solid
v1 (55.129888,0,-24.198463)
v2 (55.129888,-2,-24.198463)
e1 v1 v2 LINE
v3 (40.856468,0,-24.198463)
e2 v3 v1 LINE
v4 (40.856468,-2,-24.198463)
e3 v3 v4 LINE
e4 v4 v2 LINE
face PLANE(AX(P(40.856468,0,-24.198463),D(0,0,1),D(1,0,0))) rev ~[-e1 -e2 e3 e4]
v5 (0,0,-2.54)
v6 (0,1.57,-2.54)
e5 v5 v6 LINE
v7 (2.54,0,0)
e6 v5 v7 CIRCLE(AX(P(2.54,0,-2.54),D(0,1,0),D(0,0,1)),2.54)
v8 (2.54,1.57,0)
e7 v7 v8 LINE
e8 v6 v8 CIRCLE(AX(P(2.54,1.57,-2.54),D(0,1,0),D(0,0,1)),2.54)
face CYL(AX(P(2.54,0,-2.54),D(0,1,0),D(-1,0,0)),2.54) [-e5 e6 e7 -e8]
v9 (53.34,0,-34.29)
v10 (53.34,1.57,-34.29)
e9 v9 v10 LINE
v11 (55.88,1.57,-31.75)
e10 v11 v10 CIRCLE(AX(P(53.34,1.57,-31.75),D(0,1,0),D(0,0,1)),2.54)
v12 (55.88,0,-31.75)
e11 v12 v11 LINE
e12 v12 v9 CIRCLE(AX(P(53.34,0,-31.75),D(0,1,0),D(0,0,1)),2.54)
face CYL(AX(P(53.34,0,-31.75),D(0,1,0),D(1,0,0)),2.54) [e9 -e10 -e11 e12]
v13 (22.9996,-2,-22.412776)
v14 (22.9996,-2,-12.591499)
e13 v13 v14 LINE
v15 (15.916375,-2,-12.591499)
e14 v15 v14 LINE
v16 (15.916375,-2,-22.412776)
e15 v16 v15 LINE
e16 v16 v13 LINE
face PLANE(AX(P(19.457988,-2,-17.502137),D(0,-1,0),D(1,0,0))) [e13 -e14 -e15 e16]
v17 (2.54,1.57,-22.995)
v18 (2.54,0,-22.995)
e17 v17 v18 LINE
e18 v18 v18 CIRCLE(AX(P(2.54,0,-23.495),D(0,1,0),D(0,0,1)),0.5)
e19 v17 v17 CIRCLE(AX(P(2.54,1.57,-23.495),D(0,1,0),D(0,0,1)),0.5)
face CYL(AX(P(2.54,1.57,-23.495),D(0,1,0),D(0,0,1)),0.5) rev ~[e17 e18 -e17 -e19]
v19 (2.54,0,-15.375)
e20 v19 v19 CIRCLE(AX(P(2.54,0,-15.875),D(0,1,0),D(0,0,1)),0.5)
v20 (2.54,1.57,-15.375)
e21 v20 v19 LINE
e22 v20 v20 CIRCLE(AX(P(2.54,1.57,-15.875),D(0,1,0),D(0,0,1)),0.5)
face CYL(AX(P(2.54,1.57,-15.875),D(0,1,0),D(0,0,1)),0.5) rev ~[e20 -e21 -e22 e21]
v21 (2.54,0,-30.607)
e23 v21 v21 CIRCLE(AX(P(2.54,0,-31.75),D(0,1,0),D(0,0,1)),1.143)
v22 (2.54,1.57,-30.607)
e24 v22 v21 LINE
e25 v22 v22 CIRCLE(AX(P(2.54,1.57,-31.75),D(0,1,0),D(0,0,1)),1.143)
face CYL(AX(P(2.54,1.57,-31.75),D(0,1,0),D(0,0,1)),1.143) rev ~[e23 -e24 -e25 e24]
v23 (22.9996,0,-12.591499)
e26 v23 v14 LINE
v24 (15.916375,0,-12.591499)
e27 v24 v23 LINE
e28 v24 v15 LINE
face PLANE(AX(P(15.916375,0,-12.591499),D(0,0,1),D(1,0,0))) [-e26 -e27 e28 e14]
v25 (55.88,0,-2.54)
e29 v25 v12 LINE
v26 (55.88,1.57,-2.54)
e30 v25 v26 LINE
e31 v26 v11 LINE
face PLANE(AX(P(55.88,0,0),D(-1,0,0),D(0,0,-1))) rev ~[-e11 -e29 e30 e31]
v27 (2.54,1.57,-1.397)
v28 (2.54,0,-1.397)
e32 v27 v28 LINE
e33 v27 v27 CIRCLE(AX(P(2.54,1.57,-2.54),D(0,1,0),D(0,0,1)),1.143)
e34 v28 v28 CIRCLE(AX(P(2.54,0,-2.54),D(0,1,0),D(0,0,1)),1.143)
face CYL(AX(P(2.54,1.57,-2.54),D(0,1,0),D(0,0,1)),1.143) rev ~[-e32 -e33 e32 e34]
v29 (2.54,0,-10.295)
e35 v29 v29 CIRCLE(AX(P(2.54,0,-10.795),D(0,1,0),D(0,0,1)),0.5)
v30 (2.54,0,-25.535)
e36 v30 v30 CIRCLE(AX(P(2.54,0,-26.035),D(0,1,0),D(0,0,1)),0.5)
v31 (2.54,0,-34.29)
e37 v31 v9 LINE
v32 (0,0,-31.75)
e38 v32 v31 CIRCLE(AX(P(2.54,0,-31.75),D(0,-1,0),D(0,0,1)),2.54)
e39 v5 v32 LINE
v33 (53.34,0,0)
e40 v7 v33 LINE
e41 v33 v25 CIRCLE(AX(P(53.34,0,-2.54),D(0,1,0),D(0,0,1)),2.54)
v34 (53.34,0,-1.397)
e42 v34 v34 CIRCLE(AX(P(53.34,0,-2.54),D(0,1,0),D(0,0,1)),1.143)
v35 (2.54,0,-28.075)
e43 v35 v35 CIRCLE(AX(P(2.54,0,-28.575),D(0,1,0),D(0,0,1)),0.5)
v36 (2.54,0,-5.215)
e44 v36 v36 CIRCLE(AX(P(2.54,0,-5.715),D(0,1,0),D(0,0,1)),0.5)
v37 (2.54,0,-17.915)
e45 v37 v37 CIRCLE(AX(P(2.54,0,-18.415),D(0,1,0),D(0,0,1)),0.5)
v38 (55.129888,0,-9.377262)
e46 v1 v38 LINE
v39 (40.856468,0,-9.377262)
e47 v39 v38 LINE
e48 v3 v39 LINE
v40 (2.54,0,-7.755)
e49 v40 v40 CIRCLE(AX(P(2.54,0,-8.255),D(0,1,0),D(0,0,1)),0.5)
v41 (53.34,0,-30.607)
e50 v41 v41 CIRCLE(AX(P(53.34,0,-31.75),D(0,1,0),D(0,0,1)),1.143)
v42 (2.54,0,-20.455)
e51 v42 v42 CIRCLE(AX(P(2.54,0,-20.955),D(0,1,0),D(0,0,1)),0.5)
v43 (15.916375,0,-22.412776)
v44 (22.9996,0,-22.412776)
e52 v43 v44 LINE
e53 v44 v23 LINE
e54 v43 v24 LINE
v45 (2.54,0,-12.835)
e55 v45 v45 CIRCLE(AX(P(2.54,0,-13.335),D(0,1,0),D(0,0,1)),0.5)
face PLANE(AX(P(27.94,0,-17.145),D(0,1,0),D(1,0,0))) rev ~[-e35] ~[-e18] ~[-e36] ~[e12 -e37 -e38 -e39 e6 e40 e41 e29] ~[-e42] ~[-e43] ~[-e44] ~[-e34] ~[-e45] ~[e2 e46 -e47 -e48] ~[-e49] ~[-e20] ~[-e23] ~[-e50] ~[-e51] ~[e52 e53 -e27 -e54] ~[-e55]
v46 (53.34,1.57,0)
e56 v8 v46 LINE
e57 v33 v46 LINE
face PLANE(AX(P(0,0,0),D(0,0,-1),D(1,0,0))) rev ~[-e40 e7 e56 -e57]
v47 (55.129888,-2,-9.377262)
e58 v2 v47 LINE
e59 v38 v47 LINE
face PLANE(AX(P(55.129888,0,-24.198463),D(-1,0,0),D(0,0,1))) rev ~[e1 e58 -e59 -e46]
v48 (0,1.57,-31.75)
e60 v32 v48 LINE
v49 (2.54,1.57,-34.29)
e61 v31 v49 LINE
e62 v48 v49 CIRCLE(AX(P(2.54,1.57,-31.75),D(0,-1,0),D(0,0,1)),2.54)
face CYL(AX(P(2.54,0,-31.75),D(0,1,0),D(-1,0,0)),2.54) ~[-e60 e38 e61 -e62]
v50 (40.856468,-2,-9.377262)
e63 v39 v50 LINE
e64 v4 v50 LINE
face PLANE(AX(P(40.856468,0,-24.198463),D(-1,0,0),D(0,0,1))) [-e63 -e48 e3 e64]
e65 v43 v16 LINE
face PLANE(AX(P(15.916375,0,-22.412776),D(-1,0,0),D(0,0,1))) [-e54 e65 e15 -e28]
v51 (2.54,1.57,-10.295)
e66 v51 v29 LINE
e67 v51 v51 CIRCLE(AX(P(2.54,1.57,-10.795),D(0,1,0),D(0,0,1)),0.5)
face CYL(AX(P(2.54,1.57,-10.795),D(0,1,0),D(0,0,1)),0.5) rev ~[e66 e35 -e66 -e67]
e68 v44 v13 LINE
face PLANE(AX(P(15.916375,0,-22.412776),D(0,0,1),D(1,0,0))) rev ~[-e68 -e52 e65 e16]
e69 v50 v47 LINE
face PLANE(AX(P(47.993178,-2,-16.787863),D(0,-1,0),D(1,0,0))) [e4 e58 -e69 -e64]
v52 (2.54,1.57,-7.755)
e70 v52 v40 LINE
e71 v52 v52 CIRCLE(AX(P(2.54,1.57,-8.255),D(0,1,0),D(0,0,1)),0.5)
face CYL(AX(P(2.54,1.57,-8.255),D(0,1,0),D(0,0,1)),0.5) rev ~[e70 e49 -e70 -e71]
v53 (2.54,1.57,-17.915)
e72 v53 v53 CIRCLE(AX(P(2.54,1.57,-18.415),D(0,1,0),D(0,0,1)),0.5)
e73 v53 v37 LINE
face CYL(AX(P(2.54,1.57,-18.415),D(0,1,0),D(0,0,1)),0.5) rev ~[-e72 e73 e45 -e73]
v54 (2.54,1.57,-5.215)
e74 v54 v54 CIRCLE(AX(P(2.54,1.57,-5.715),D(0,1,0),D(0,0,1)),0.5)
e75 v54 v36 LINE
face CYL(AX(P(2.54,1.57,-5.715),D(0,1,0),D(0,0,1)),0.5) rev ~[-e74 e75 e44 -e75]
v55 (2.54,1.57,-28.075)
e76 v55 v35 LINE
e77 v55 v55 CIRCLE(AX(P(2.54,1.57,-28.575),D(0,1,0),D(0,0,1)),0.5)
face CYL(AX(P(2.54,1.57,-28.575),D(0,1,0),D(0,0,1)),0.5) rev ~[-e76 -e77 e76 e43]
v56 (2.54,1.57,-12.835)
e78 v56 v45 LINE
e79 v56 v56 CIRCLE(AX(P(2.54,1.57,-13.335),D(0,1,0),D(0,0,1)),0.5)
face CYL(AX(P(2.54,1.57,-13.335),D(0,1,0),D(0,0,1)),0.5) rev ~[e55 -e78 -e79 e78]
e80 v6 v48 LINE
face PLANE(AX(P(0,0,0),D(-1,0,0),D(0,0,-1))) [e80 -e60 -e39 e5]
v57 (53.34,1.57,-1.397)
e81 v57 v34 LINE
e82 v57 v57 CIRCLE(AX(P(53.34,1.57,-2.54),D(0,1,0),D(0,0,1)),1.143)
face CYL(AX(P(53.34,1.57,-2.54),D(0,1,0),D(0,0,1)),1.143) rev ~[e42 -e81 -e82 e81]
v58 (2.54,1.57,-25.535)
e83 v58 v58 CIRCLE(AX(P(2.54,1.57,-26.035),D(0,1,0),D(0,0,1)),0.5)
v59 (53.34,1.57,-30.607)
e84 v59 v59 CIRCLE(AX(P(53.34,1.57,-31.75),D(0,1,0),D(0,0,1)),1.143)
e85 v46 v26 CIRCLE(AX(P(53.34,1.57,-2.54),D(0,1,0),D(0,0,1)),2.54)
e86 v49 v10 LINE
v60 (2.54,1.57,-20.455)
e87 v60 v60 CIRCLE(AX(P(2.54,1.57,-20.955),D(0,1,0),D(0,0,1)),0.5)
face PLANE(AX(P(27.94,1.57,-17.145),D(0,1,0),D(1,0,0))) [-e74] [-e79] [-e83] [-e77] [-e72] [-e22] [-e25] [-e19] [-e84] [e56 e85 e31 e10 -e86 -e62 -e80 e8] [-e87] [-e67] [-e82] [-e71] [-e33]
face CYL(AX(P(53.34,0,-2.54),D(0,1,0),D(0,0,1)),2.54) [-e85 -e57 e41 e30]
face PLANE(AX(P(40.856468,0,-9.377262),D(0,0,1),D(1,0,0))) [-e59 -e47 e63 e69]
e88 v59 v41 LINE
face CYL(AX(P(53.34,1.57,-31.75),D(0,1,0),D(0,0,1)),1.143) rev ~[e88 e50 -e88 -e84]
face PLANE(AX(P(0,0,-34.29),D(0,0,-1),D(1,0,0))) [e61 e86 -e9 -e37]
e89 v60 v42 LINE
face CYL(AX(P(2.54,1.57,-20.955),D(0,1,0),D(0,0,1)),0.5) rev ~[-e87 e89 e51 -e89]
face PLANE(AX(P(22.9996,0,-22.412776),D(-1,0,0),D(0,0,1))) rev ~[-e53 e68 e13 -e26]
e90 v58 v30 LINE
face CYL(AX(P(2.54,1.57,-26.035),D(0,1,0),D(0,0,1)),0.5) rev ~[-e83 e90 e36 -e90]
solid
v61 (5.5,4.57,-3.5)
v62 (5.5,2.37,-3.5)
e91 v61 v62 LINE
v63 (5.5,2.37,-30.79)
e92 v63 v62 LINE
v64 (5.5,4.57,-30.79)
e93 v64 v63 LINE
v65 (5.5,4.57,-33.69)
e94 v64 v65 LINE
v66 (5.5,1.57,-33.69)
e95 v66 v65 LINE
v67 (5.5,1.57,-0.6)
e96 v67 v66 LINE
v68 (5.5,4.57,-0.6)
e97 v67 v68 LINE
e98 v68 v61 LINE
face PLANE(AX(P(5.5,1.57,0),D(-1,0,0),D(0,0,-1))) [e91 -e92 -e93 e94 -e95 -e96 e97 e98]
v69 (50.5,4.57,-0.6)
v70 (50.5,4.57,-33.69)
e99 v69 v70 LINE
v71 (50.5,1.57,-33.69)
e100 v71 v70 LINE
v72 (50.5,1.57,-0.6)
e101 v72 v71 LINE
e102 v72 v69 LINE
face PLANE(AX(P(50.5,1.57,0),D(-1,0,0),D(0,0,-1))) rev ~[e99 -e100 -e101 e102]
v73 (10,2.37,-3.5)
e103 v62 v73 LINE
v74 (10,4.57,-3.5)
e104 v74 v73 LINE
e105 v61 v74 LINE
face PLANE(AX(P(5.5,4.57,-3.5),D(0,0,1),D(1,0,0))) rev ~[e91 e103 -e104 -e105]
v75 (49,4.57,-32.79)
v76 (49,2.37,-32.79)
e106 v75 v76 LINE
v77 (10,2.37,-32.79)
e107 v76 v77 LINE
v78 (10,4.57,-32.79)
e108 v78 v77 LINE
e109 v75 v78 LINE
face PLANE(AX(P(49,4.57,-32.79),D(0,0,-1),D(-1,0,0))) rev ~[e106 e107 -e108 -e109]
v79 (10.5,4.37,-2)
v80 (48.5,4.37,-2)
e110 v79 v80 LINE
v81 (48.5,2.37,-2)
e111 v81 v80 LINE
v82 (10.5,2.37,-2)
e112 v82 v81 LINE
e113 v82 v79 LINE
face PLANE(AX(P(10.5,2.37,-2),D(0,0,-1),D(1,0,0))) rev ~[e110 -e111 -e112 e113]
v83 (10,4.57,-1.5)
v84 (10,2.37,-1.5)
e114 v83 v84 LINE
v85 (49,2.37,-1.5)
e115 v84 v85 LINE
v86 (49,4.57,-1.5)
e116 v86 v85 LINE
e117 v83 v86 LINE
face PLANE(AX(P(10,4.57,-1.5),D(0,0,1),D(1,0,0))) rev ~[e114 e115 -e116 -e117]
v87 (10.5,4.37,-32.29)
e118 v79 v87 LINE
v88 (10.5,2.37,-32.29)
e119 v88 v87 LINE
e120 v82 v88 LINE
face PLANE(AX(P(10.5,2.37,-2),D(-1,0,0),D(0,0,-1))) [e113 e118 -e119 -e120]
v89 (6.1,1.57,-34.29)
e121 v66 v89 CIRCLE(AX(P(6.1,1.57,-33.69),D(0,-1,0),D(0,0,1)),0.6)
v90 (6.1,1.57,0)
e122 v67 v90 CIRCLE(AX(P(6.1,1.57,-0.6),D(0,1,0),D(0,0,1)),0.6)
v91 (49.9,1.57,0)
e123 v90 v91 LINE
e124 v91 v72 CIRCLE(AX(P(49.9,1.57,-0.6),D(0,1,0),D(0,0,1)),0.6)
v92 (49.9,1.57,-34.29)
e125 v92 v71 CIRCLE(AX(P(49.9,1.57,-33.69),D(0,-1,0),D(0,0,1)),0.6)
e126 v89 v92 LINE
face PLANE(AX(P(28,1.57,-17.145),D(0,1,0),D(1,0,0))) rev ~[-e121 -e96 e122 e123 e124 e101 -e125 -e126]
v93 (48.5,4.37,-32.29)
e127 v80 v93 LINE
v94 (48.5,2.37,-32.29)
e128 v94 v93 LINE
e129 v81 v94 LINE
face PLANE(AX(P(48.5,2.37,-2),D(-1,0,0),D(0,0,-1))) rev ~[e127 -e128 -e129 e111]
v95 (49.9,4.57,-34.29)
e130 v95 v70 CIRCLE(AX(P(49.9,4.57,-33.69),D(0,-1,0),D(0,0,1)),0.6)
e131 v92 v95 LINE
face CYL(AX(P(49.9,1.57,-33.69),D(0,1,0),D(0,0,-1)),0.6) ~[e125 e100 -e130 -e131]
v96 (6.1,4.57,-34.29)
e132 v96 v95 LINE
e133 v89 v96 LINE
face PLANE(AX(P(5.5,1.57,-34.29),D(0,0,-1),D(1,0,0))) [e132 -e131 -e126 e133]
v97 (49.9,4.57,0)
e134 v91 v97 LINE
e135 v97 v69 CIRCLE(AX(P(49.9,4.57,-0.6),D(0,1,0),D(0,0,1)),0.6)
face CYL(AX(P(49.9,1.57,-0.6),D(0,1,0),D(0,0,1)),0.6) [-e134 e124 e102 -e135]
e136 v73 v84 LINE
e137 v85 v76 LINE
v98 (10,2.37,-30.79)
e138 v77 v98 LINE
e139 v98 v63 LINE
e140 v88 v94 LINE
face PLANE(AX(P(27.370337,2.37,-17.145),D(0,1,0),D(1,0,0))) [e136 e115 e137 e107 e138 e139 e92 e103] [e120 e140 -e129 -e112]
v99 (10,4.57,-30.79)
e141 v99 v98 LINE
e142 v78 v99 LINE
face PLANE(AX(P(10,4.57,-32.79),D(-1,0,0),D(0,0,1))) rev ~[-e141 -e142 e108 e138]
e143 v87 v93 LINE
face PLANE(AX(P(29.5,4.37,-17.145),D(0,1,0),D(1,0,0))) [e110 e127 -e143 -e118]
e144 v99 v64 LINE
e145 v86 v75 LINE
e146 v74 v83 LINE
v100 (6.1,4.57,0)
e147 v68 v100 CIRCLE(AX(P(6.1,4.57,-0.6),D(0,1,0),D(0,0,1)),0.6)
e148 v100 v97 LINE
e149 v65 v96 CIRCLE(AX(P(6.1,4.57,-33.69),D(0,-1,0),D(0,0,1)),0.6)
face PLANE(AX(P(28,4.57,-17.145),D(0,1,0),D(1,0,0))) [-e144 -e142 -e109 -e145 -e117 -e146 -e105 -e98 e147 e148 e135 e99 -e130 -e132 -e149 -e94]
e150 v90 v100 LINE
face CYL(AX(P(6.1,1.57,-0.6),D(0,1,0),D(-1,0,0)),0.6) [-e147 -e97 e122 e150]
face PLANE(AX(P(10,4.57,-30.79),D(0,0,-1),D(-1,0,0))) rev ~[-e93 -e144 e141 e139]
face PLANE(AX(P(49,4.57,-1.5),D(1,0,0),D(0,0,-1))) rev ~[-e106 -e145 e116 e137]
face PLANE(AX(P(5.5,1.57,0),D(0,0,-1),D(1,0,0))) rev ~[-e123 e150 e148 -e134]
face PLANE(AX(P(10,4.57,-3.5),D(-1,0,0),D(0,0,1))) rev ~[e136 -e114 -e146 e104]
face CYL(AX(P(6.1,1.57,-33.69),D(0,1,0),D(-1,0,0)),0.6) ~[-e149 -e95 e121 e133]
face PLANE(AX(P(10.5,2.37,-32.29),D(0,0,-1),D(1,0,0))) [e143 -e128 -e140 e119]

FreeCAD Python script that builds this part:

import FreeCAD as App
import Part
import Sketcher

V = App.Vector
Q = App.Units.Quantity


def edges_at(feature, points):
    """Names of the edges that pass closest to the given points."""
    edges = feature.Shape.Edges
    near = lambda p: min(range(len(edges)), key=lambda i: edges[i].distToShape(Part.Vertex(*p))[0])
    return sorted({f"Edge{near(p) + 1}" for p in points})


def add_polygon(sketch, points):
    """Adds a closed chain of lines whose ends are joined by coincident constraints."""
    first, n = sketch.GeometryCount, len(points)
    for a, b in zip(points, points[1:] + points[:1]):
        sketch.addGeometry(Part.LineSegment(App.Vector(*a, 0), App.Vector(*b, 0)), False)
    for i in range(n):
        sketch.addConstraint(Sketcher.Constraint("Coincident", first + i, 2, first + (i + 1) % n, 1))

doc = App.newDocument("Part")
body = doc.addObject("PartDesign::Body", "Body")

sketch1 = doc.addObject("Sketcher::SketchObject", "Sketch")
body.addObject(sketch1)
sketch1.AttachmentSupport = (doc.XZ_Plane, [""])
sketch1.MapMode = "FlatFace"
add_polygon(sketch1, [(0, -34.29), (0, 0), (55.88, 0), (55.88, -34.29)])
sketch1.addConstraint([
    Sketcher.Constraint("Vertical", 0),
    Sketcher.Constraint("Horizontal", 1),
    Sketcher.Constraint("Vertical", 2),
    Sketcher.Constraint("Horizontal", 3),
    Sketcher.Constraint("Coincident", 0, 2, -1, 1),
    Sketcher.Constraint("DistanceX", 1, 1, 1, 2, Q("55.88 mm")),
    Sketcher.Constraint("DistanceY", 0, 1, 0, 2, Q("34.29 mm")),
])
pad1 = doc.addObject("PartDesign::Pad", "Pad")
body.addObject(pad1)
pad1.Profile = sketch1
pad1.Length = 1.57
pad1.Reversed = True
doc.recompute()

fillet = doc.addObject("PartDesign::Fillet", "Fillet")
body.addObject(fillet)
fillet.Base = (pad1, edges_at(pad1, [
    (0, 0.785, -34.29),
    (55.88, 0.785, -34.29),
    (55.88, 0.785, 0),
    (0, 0.785, 0),
]))
fillet.Radius = 2.54

sketch2 = doc.addObject("Sketcher::SketchObject", "Sketch001")
body.addObject(sketch2)
sketch2.AttachmentSupport = (doc.XZ_Plane, [""])
sketch2.MapMode = "FlatFace"
sketch2.AttachmentOffset = App.Placement(V(0, 0, -1.57), App.Rotation())
sketch2.addGeometry([
    Part.Circle(V(2.54, -31.75, 0), V(0, 0, 1), 1.143),
    Part.Circle(V(53.34, -31.75, 0), V(0, 0, 1), 1.143),
    Part.Circle(V(53.34, -2.54, 0), V(0, 0, 1), 1.143),
    Part.Circle(V(2.54, -2.54, 0), V(0, 0, 1), 1.143),
], False)
sketch2.addConstraint([
    Sketcher.Constraint("Equal", 0, 1),
    Sketcher.Constraint("Equal", 1, 2),
    Sketcher.Constraint("Equal", 2, 3),
    Sketcher.Constraint("Horizontal", 0, 3, 1, 3),
    Sketcher.Constraint("Horizontal", 2, 3, 3, 3),
    Sketcher.Constraint("Vertical", 1, 3, 2, 3),
    Sketcher.Constraint("Vertical", 0, 3, 3, 3),
    Sketcher.Constraint("Diameter", 0, Q("2.286 mm")),
    Sketcher.Constraint("DistanceX", 0, 3, 1, 3, Q("50.8 mm")),
    Sketcher.Constraint("DistanceX", -1, 1, 0, 3, Q("2.54 mm")),
    Sketcher.Constraint("DistanceY", 0, 3, -1, 1, Q("31.75 mm")),
    Sketcher.Constraint("DistanceY", 2, 3, -1, 1, Q("2.54 mm")),
])
pocket1 = doc.addObject("PartDesign::Pocket", "Pocket")
body.addObject(pocket1)
pocket1.Profile = sketch2
pocket1.Type = "ThroughAll"
pocket1.Reversed = True

sketch3 = doc.addObject("Sketcher::SketchObject", "Sketch002")
body.addObject(sketch3)
sketch3.AttachmentSupport = (doc.XZ_Plane, [""])
sketch3.MapMode = "FlatFace"
sketch3.AttachmentOffset = App.Placement(V(0, 0, -1.57), App.Rotation())
sketch3.addGeometry(Part.Circle(V(2.54, -5.715, 0), V(0, 0, 1), 0.5), False)
sketch3.addConstraint([
    Sketcher.Constraint("Diameter", 0, Q("1 mm")),
    Sketcher.Constraint("DistanceX", -1, 1, 0, 3, Q("2.54 mm")),
    Sketcher.Constraint("DistanceY", 0, 3, -1, 1, Q("5.715 mm")),
])
pocket2 = doc.addObject("PartDesign::Pocket", "Pocket001")
body.addObject(pocket2)
pocket2.Profile = sketch3
pocket2.Type = "ThroughAll"
pocket2.Reversed = True
doc.recompute()

linearpattern = doc.addObject("PartDesign::LinearPattern", "LinearPattern")
body.addObject(linearpattern)
linearpattern.Originals = [pocket2]
linearpattern.Direction = (doc.Z_Axis, [""])
linearpattern.Mode = "offset"
linearpattern.Offset = 2.54
linearpattern.Occurrences = 10
linearpattern.Reversed = True
body.Tip = linearpattern

sketch4 = doc.addObject("Sketcher::SketchObject", "Sketch003")
body.addObject(sketch4)
sketch4.AttachmentSupport = (doc.XZ_Plane, [""])
sketch4.MapMode = "FlatFace"
add_polygon(sketch4, [(15.916375, -12.591499), (15.916375, -22.412776), (22.9996, -22.412776), (22.9996, -12.591499)])
add_polygon(sketch4, [(40.856468, -9.377262), (40.856468, -24.198463), (55.129888, -24.198463), (55.129888, -9.377262)])
sketch4.addConstraint([
    Sketcher.Constraint("Vertical", 0),
    Sketcher.Constraint("Horizontal", 1),
    Sketcher.Constraint("Vertical", 2),
    Sketcher.Constraint("Horizontal", 3),
    Sketcher.Constraint("Vertical", 4),
    Sketcher.Constraint("Horizontal", 5),
    Sketcher.Constraint("Vertical", 6),
    Sketcher.Constraint("Horizontal", 7),
    Sketcher.Constraint("DistanceY", 4, 2, 4, 1, Q("14.821201 mm")),
    Sketcher.Constraint("DistanceX", 5, 1, 5, 2, Q("14.27342 mm")),
    Sketcher.Constraint("DistanceX", -1, 1, 1, 2, Q("22.9996 mm")),
    Sketcher.Constraint("DistanceY", 2, 2, -1, 1, Q("12.591499 mm")),
    Sketcher.Constraint("DistanceX", 1, 1, 1, 2, Q("7.083224 mm")),
    Sketcher.Constraint("DistanceY", 0, 2, 0, 1, Q("9.821278 mm")),
    Sketcher.Constraint("DistanceX", -1, 1, 4, 2, Q("40.856468 mm")),
    Sketcher.Constraint("DistanceY", 4, 2, -1, 1, Q("24.198463 mm")),
])
pad2 = doc.addObject("PartDesign::Pad", "Pad001")
body.addObject(pad2)
pad2.Profile = sketch4
pad2.Length = 2
body2 = doc.addObject("PartDesign::Body", "Body001")

sketch5 = doc.addObject("Sketcher::SketchObject", "Sketch004")
body2.addObject(sketch5)
sketch5.AttachmentSupport = (doc.getObject("XZ_Plane001"), [""])
sketch5.MapMode = "FlatFace"
sketch5.AttachmentOffset = App.Placement(V(0, 0, -1.57), App.Rotation())
add_polygon(sketch5, [(5.5, -34.29), (5.5, 0), (50.5, 0), (50.5, -34.29)])
sketch5.addConstraint([
    Sketcher.Constraint("Vertical", 0),
    Sketcher.Constraint("Horizontal", 1),
    Sketcher.Constraint("Vertical", 2),
    Sketcher.Constraint("Horizontal", 3),
    Sketcher.Constraint("PointOnObject", 0, 2, -1),
    Sketcher.Constraint("DistanceX", 1, 1, 1, 2, Q("45 mm")),
    Sketcher.Constraint("DistanceY", 0, 1, 0, 2, Q("34.29 mm")),
    Sketcher.Constraint("DistanceX", -1, 1, 0, 2, Q("5.5 mm")),
])
pad3 = doc.addObject("PartDesign::Pad", "Pad002")
body2.addObject(pad3)
pad3.Profile = sketch5
pad3.Length = 3
pad3.Reversed = True

sketch6 = doc.addObject("Sketcher::SketchObject", "Sketch005")
body2.addObject(sketch6)
sketch6.AttachmentSupport = (doc.getObject("XZ_Plane001"), [""])
sketch6.MapMode = "FlatFace"
sketch6.AttachmentOffset = App.Placement(V(0, 0, -4.57), App.Rotation())
add_polygon(sketch6, [(10, -32.79), (10, -30.79), (5.5, -30.79), (5.5, -3.5), (10, -3.5), (10, -1.5), (49, -1.5), (49, -32.79)])
sketch6.addConstraint([
    Sketcher.Constraint("Vertical", 0),
    Sketcher.Constraint("Horizontal", 1),
    Sketcher.Constraint("Vertical", 2),
    Sketcher.Constraint("Horizontal", 3),
    Sketcher.Constraint("Vertical", 4),
    Sketcher.Constraint("Horizontal", 5),
    Sketcher.Constraint("Vertical", 6),
    Sketcher.Constraint("Horizontal", 7),
    Sketcher.Constraint("Vertical", 0, 2, 3, 2),
    Sketcher.Constraint("Equal", 0, 4),
    Sketcher.Constraint("DistanceX", 5, 1, 5, 2, Q("39 mm")),
    Sketcher.Constraint("DistanceY", 0, 1, 0, 2, Q("2 mm")),
    Sketcher.Constraint("DistanceX", 1, 2, 1, 1, Q("4.5 mm")),
    Sketcher.Constraint("DistanceX", -1, 1, 0, 2, Q("10 mm")),
    Sketcher.Constraint("DistanceY", 2, 1, 2, 2, Q("27.29 mm")),
    Sketcher.Constraint("DistanceY", 2, 2, -1, 1, Q("3.5 mm")),
])
pocket3 = doc.addObject("PartDesign::Pocket", "Pocket002")
body2.addObject(pocket3)
pocket3.Profile = sketch6
pocket3.Length = 2.2
pocket3.Reversed = True

sketch7 = doc.addObject("Sketcher::SketchObject", "Sketch006")
body2.addObject(sketch7)
sketch7.AttachmentSupport = (doc.getObject("XZ_Plane001"), [""])
sketch7.MapMode = "FlatFace"
sketch7.AttachmentOffset = App.Placement(V(0, 0, -2.37), App.Rotation())
add_polygon(sketch7, [(10.5, -32.29), (10.5, -2), (48.5, -2), (48.5, -32.29)])
sketch7.addConstraint([
    Sketcher.Constraint("Vertical", 0),
    Sketcher.Constraint("Horizontal", 1),
    Sketcher.Constraint("Vertical", 2),
    Sketcher.Constraint("Horizontal", 3),
    Sketcher.Constraint("DistanceX", 1, 1, 1, 2, Q("38 mm")),
    Sketcher.Constraint("DistanceY", 0, 2, -1, 1, Q("2 mm")),
    Sketcher.Constraint("DistanceY", 0, 1, 0, 2, Q("30.29 mm")),
    Sketcher.Constraint("DistanceX", -1, 1, 0, 2, Q("10.5 mm")),
])
pad4 = doc.addObject("PartDesign::Pad", "Pad003")
body2.addObject(pad4)
pad4.Profile = sketch7
pad4.Length = 2
pad4.Reversed = True
doc.recompute()

fillet2 = doc.addObject("PartDesign::Fillet", "Fillet001")
body2.addObject(fillet2)
fillet2.Base = (pad4, edges_at(pad4, [
    (5.5, 3.07, -34.29),
    (50.5, 3.07, -34.29),
    (50.5, 3.07, 0),
    (5.5, 3.07, 0),
]))
fillet2.Radius = 0.6

doc.recompute()
